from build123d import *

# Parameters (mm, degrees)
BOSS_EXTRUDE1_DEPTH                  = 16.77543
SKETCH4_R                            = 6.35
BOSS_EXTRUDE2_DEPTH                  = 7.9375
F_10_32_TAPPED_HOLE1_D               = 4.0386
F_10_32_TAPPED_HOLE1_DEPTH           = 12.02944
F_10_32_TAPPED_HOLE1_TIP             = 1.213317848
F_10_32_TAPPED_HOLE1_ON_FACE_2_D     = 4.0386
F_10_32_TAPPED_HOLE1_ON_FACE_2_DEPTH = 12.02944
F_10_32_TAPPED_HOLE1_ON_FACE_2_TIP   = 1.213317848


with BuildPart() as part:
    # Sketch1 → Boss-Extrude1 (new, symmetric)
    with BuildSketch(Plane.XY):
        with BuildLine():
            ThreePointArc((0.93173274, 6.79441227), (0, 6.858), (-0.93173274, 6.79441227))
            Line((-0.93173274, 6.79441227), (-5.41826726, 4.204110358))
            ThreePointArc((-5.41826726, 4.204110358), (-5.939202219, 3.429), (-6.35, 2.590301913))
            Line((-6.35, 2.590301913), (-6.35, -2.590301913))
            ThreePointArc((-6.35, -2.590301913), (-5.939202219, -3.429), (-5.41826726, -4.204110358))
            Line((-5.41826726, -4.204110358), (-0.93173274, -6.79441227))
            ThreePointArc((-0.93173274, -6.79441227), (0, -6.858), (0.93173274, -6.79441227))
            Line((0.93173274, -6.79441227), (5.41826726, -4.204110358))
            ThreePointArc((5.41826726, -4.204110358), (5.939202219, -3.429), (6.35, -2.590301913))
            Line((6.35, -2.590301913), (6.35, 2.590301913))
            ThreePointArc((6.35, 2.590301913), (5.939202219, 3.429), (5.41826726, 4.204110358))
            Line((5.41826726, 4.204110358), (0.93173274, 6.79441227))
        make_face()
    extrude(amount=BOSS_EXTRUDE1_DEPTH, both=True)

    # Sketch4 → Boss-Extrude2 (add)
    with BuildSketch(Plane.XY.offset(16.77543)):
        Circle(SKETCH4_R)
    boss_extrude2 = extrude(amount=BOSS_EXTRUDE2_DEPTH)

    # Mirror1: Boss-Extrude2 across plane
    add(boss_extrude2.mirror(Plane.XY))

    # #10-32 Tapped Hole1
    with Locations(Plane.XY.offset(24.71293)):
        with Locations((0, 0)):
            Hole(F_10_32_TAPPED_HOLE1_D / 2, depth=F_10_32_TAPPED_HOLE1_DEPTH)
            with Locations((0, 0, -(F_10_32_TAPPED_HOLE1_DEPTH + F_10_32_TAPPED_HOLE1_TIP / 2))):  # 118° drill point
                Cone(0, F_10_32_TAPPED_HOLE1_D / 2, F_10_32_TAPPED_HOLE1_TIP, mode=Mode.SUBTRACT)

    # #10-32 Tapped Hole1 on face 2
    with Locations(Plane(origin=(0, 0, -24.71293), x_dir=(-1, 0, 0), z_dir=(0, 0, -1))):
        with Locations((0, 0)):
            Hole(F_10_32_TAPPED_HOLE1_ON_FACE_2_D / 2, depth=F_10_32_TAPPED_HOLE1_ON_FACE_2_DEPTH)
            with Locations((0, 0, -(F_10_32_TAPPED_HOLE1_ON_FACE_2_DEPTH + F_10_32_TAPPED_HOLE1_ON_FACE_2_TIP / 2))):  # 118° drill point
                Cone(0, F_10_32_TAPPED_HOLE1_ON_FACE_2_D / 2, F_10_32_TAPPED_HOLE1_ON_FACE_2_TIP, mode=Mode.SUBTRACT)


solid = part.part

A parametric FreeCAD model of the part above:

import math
import FreeCAD as App
import Part
import Sketcher
Q = App.Units.Quantity

doc = App.newDocument("Part")
body = doc.addObject("PartDesign::Body", "Body")

sketch1 = body.newObject("Sketcher::SketchObject", "Sketch")
sketch1.AttachmentSupport = (doc.getObject("XY_Plane"), [""])
sketch1.MapMode = "FlatFace"
sketch1.addGeometry([
    Part.ArcOfCircle(Part.Circle(App.Vector(0, 0, 0), App.Vector(0, 0, 1), 6.9), math.radians(82.19), math.radians(97.81)),
    Part.LineSegment(App.Vector(-0.9, 6.8, 0), App.Vector(-5.4, 4.2, 0)),
    Part.ArcOfCircle(Part.Circle(App.Vector(0, 0, 0), App.Vector(0, 0, 1), 6.9), math.radians(142.19), math.radians(157.81)),
    Part.LineSegment(App.Vector(-6.3, 2.6, 0), App.Vector(-6.3, -2.6, 0)),
    Part.ArcOfCircle(Part.Circle(App.Vector(0, 0, 0), App.Vector(0, 0, 1), 6.9), math.radians(-157.81), math.radians(-142.19)),
    Part.LineSegment(App.Vector(-5.4, -4.2, 0), App.Vector(-0.9, -6.8, 0)),
    Part.ArcOfCircle(Part.Circle(App.Vector(0, 0, 0), App.Vector(0, 0, 1), 6.9), math.radians(-97.81), math.radians(-82.19)),
    Part.LineSegment(App.Vector(0.9, -6.8, 0), App.Vector(5.4, -4.2, 0)),
    Part.ArcOfCircle(Part.Circle(App.Vector(0, 0, 0), App.Vector(0, 0, 1), 6.9), math.radians(-37.81), math.radians(-22.19)),
    Part.LineSegment(App.Vector(6.3, -2.6, 0), App.Vector(6.3, 2.6, 0)),
    Part.ArcOfCircle(Part.Circle(App.Vector(0, 0, 0), App.Vector(0, 0, 1), 6.9), math.radians(22.19), math.radians(37.81)),
    Part.LineSegment(App.Vector(5.4, 4.2, 0), App.Vector(0.9, 6.8, 0)),
], False)
sketch1.addConstraint([
    Sketcher.Constraint("Coincident", 0, 2, 1, 1),
    Sketcher.Constraint("Coincident", 1, 2, 2, 1),
    Sketcher.Constraint("Coincident", 2, 2, 3, 1),
    Sketcher.Constraint("Coincident", 3, 2, 4, 1),
    Sketcher.Constraint("Coincident", 4, 2, 5, 1),
    Sketcher.Constraint("Coincident", 5, 2, 6, 1),
    Sketcher.Constraint("Coincident", 6, 2, 7, 1),
    Sketcher.Constraint("Coincident", 7, 2, 8, 1),
    Sketcher.Constraint("Coincident", 8, 2, 9, 1),
    Sketcher.Constraint("Coincident", 9, 2, 10, 1),
    Sketcher.Constraint("Coincident", 10, 2, 11, 1),
    Sketcher.Constraint("Coincident", 11, 2, 0, 1),
    Sketcher.Constraint("Vertical", 3),
    Sketcher.Constraint("Vertical", 9),
    Sketcher.Constraint("Coincident", 0, 3, -1, 1),
    Sketcher.Constraint("Coincident", 2, 3, -1, 1),
    Sketcher.Constraint("Coincident", 4, 3, -1, 1),
    Sketcher.Constraint("Coincident", 6, 3, -1, 1),
    Sketcher.Constraint("Coincident", 8, 3, -1, 1),
    Sketcher.Constraint("Coincident", 10, 3, -1, 1),
    Sketcher.Constraint("Equal", 0, 2),
    Sketcher.Constraint("Equal", 2, 4),
    Sketcher.Constraint("Equal", 4, 6),
    Sketcher.Constraint("Equal", 6, 8),
    Sketcher.Constraint("Equal", 8, 10),
    Sketcher.Constraint("Parallel", 1, 7),
    Sketcher.Constraint("Parallel", 5, 11),
    Sketcher.Constraint("Horizontal", 5, 2, 6, 2),
    Sketcher.Constraint("Horizontal", 4, 2, 7, 2),
    Sketcher.Constraint("Horizontal", 3, 2, 8, 2),
    Sketcher.Constraint("Horizontal", 1, 2, 10, 2),
    Sketcher.Constraint("Vertical", 1, 2, 4, 2),
    Sketcher.Constraint("Radius", 0, Q("0.27 in")),
    Sketcher.Constraint("Angle", 1, Q("-150 deg")),
    Sketcher.Constraint("DistanceX", 2, 2, -1, 1, Q("0.25 in")),
    Sketcher.Constraint("DistanceX", 4, 2, 6, 2, Q("0.25 in")),
])
pad1 = body.newObject("PartDesign::Pad", "Pad")
pad1.Profile = sketch1
pad1.Length = Q("1.3209 in")
pad1.Midplane = True

sketch2 = body.newObject("Sketcher::SketchObject", "Sketch001")
sketch2.AttachmentSupport = (doc.getObject("XY_Plane"), [""])
sketch2.MapMode = "FlatFace"
sketch2.AttachmentOffset = App.Placement(App.Vector(0, 0, 16.77543), App.Rotation())
sketch2.addGeometry(Part.Circle(App.Vector(0, 0, 0), App.Vector(0, 0, 1), 6), False)
sketch2.addConstraint([
    Sketcher.Constraint("Coincident", 0, 3, -1, 1),
    Sketcher.Constraint("Diameter", 0, Q("0.5 in")),
])
pad2 = body.newObject("PartDesign::Pad", "Pad001")
pad2.Profile = sketch2
pad2.Length = Q("0.3125 in")
doc.recompute()

mirrored = body.newObject("PartDesign::Mirrored", "Mirrored")
mirrored.Originals = [pad2]
mirrored.MirrorPlane = (doc.getObject("XY_Plane"), [""])
body.Tip = mirrored

sketch3 = body.newObject("Sketcher::SketchObject", "Sketch002")
sketch3.AttachmentSupport = (doc.getObject("XY_Plane"), [""])
sketch3.MapMode = "FlatFace"
sketch3.AttachmentOffset = App.Placement(App.Vector(0, 0, 24.71293), App.Rotation())
sketch3.addGeometry(Part.Circle(App.Vector(0, 0, 0), App.Vector(0, 0, 1), 2), False)
sketch3.addConstraint([
    Sketcher.Constraint("Coincident", 0, 3, -1, 1),
    Sketcher.Constraint("Diameter", 0, Q("0.159 in")),
])
doc.recompute()
hole = body.newObject("PartDesign::Hole", "Hole")
hole.Profile = sketch3
hole.ThreadType = "None"
hole.Diameter = Q("0.159 in")
hole.DepthType = "Dimension"
hole.Depth = Q("0.4736 in")
hole.DrillPoint = "Angled"
hole.DrillPointAngle = 118

sketch4 = body.newObject("Sketcher::SketchObject", "Sketch003")
sketch4.AttachmentSupport = (doc.getObject("XY_Plane"), [""])
sketch4.MapMode = "FlatFace"
sketch4.AttachmentOffset = App.Placement(App.Vector(0, 0, -24.71293), App.Rotation())
sketch4.addGeometry(Part.Circle(App.Vector(0, 0, 0), App.Vector(0, 0, 1), 2), False)
sketch4.addConstraint([
    Sketcher.Constraint("Coincident", 0, 3, -1, 1),
    Sketcher.Constraint("Diameter", 0, Q("0.159 in")),
])
doc.recompute()
hole2 = body.newObject("PartDesign::Hole", "Hole001")
hole2.Profile = sketch4
hole2.ThreadType = "None"
hole2.Diameter = Q("0.159 in")
hole2.DepthType = "Dimension"
hole2.Depth = Q("0.4736 in")
hole2.DrillPoint = "Angled"
hole2.DrillPointAngle = 118
hole2.Reversed = True

doc.recompute()
